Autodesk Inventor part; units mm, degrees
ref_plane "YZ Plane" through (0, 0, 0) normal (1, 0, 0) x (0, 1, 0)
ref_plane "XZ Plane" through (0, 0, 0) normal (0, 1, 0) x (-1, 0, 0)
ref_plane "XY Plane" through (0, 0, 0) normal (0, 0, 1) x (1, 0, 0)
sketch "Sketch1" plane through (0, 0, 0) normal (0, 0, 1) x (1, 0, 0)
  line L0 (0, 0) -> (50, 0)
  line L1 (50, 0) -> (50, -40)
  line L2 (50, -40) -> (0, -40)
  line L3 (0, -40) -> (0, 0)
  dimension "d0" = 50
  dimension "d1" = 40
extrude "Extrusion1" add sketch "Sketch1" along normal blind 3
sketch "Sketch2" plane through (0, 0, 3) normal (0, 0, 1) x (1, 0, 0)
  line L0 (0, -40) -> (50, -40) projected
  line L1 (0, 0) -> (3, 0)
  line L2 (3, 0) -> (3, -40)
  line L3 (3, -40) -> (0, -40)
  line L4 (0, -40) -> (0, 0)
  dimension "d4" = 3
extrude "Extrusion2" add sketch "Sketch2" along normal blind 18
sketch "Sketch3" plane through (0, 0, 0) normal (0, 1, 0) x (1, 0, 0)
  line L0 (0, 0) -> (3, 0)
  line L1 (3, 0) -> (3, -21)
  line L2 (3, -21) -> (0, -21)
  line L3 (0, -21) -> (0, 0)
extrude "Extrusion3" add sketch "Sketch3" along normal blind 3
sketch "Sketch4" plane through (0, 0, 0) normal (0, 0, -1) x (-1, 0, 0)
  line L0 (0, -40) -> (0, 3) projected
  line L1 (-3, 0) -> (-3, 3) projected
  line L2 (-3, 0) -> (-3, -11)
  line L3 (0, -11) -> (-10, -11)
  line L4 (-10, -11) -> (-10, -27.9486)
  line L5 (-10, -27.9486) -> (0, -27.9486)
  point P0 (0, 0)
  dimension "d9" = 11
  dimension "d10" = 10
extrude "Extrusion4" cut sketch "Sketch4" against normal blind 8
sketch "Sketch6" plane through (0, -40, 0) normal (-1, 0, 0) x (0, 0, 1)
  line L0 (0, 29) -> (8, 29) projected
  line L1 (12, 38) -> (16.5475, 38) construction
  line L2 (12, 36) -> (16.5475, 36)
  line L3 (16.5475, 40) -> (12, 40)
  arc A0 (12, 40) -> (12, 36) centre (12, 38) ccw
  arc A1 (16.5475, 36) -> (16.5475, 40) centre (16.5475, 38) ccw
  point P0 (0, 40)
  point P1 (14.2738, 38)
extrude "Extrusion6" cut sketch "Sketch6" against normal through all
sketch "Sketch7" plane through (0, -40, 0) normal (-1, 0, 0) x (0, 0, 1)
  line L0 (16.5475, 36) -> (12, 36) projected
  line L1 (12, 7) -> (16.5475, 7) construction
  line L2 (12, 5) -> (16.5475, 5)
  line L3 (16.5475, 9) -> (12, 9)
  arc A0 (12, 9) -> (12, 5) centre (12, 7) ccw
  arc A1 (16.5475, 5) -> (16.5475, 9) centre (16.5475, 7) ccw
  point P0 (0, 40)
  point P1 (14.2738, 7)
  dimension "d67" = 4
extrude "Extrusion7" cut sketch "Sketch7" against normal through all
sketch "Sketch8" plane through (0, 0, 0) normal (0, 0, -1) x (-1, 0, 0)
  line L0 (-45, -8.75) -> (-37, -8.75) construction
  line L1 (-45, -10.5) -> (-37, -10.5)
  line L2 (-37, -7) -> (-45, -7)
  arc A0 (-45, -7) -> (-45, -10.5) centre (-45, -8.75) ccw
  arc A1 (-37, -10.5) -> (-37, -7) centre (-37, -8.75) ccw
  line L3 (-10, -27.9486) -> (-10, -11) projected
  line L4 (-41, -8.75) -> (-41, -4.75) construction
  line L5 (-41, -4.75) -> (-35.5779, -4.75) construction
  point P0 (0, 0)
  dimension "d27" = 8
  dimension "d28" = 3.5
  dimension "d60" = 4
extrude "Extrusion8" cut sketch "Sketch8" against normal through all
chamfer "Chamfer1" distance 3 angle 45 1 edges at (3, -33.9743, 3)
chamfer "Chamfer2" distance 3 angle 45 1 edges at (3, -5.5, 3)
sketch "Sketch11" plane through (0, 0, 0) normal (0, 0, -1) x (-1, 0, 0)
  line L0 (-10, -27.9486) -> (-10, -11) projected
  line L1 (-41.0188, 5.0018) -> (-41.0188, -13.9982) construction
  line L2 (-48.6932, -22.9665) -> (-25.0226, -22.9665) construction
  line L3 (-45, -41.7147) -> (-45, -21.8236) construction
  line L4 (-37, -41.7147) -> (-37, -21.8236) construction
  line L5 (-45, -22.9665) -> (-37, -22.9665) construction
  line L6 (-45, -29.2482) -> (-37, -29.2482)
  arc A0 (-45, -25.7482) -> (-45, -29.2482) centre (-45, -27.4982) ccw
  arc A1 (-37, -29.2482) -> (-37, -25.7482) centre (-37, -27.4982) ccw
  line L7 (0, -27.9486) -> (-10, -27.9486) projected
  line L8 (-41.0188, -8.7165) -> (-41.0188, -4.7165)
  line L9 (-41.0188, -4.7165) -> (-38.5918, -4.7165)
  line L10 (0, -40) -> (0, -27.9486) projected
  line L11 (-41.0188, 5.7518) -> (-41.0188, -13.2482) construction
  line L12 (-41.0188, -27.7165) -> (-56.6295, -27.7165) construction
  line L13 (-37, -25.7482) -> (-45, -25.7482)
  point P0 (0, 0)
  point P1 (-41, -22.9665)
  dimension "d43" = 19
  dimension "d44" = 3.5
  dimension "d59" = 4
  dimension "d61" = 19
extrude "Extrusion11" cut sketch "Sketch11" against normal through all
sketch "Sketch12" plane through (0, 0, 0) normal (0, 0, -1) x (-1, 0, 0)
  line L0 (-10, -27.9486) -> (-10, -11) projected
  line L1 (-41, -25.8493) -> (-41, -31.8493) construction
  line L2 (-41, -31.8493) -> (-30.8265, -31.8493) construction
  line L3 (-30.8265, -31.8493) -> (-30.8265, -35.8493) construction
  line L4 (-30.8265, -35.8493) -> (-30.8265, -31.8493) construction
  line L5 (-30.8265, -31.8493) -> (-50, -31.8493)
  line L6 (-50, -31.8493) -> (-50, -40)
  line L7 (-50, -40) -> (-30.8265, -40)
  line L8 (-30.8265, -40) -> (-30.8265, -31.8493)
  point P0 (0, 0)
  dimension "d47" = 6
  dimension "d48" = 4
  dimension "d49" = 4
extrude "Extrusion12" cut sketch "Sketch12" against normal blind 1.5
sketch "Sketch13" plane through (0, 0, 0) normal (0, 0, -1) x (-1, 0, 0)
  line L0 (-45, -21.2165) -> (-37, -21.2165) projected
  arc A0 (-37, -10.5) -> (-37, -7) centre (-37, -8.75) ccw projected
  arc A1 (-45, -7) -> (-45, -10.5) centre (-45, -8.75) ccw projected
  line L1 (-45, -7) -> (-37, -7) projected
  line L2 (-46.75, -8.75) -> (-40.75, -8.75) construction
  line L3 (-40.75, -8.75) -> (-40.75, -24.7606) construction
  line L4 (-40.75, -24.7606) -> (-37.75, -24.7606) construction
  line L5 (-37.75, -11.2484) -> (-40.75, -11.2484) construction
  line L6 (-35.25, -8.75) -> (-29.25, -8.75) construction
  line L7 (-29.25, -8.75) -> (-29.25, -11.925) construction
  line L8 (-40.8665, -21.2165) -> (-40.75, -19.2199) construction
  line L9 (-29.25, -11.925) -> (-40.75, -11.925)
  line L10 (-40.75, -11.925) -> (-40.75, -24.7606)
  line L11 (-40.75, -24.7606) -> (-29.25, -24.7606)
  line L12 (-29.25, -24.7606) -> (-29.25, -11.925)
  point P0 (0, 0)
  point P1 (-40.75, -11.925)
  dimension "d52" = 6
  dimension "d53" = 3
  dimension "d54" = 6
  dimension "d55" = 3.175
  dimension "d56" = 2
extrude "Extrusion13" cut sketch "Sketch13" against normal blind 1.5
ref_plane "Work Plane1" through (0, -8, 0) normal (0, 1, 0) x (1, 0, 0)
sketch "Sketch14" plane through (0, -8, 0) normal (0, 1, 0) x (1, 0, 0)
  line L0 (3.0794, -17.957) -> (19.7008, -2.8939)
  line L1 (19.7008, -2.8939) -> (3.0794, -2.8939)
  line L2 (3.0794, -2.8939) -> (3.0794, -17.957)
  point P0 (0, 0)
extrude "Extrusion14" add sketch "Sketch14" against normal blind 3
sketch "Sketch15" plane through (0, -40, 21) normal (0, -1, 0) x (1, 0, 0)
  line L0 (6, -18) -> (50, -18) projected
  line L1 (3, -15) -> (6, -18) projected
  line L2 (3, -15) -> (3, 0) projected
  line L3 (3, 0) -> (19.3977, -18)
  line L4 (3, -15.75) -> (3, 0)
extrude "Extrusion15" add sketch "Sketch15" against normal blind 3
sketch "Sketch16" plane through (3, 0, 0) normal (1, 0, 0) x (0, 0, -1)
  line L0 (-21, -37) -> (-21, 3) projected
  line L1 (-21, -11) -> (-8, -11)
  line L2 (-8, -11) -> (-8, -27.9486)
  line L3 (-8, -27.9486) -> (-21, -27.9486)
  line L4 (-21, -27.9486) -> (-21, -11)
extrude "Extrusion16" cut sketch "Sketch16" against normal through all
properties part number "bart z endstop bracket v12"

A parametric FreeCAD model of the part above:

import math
import FreeCAD as App
import Part
import Sketcher
from FreeCAD import Vector
Q = App.Units.Quantity


def edges_at(feature, points):
    """Names of the edges that pass closest to the given points."""
    edges = feature.Shape.Edges
    near = lambda p: min(range(len(edges)), key=lambda i: edges[i].distToShape(Part.Vertex(*p))[0])
    return sorted({f"Edge{near(p) + 1}" for p in points})

doc = App.newDocument("Part")
body = doc.addObject("PartDesign::Body", "Body")

# Sketch on XY plane
sketch1 = body.newObject("Sketcher::SketchObject", "Sketch")
sketch1.AttachmentSupport = (doc.getObject("XY_Plane"), [""])
sketch1.MapMode = "FlatFace"
sketch1.addGeometry([
    Part.LineSegment(Vector(50, 0, 0), Vector(0, 0, 0)),
    Part.LineSegment(Vector(0, 0, 0), Vector(0, -40, 0)),
    Part.LineSegment(Vector(0, -40, 0), Vector(50, -40, 0)),
    Part.LineSegment(Vector(50, -40, 0), Vector(50, 0, 0)),
], False)
sketch1.addConstraint([
    Sketcher.Constraint("Coincident", 0, 2, 1, 1),
    Sketcher.Constraint("Coincident", 1, 2, 2, 1),
    Sketcher.Constraint("Coincident", 2, 2, 3, 1),
    Sketcher.Constraint("Coincident", 3, 2, 0, 1),
    Sketcher.Constraint("Horizontal", 0),
    Sketcher.Constraint("Vertical", 1),
    Sketcher.Constraint("Horizontal", 2),
    Sketcher.Constraint("Vertical", 3),
    Sketcher.Constraint("Coincident", 0, 2, -1, 1),
    Sketcher.Constraint("DistanceX", 0, 2, 0, 1, 50.0),
    Sketcher.Constraint("DistanceY", 1, 2, 1, 1, 40.0),
])
pad1 = body.newObject("PartDesign::Pad", "Pad")
pad1.Profile = sketch1
pad1.Length = 3

# Sketch on XY plane
sketch2 = body.newObject("Sketcher::SketchObject", "Sketch001")
sketch2.AttachmentSupport = (doc.getObject("XY_Plane"), [""])
sketch2.MapMode = "FlatFace"
sketch2.AttachmentOffset = App.Placement(Vector(0, 0, 3), App.Rotation())
sketch2.addGeometry([
    Part.LineSegment(Vector(0, 0, 0), Vector(0, -40, 0)),
    Part.LineSegment(Vector(0, -40, 0), Vector(3, -40, 0)),
    Part.LineSegment(Vector(3, -40, 0), Vector(3, 0, 0)),
    Part.LineSegment(Vector(3, 0, 0), Vector(0, 0, 0)),
], False)
sketch2.addConstraint([
    Sketcher.Constraint("Coincident", 0, 2, 1, 1),
    Sketcher.Constraint("Coincident", 1, 2, 2, 1),
    Sketcher.Constraint("Coincident", 2, 2, 3, 1),
    Sketcher.Constraint("Coincident", 3, 2, 0, 1),
    Sketcher.Constraint("Vertical", 0),
    Sketcher.Constraint("Horizontal", 1),
    Sketcher.Constraint("Vertical", 2),
    Sketcher.Constraint("Horizontal", 3),
    Sketcher.Constraint("Coincident", 3, 2, -1, 1),
    Sketcher.Constraint("DistanceX", 1, 1, 1, 2, 3.0),
    Sketcher.Constraint("DistanceY", 0, 2, 0, 1, 40.0),
])
pad2 = body.newObject("PartDesign::Pad", "Pad001")
pad2.Profile = sketch2
pad2.Length = 18

# Sketch on XZ plane
sketch3 = body.newObject("Sketcher::SketchObject", "Sketch002")
sketch3.AttachmentSupport = (doc.getObject("XZ_Plane"), [""])
sketch3.MapMode = "FlatFace"
sketch3.addGeometry([
    Part.LineSegment(Vector(3, 0, 0), Vector(0, 0, 0)),
    Part.LineSegment(Vector(0, 0, 0), Vector(0, 21, 0)),
    Part.LineSegment(Vector(0, 21, 0), Vector(3, 21, 0)),
    Part.LineSegment(Vector(3, 21, 0), Vector(3, 0, 0)),
], False)
sketch3.addConstraint([
    Sketcher.Constraint("Coincident", 0, 2, 1, 1),
    Sketcher.Constraint("Coincident", 1, 2, 2, 1),
    Sketcher.Constraint("Coincident", 2, 2, 3, 1),
    Sketcher.Constraint("Coincident", 3, 2, 0, 1),
    Sketcher.Constraint("Horizontal", 0),
    Sketcher.Constraint("Vertical", 1),
    Sketcher.Constraint("Horizontal", 2),
    Sketcher.Constraint("Vertical", 3),
    Sketcher.Constraint("Coincident", 0, 2, -1, 1),
    Sketcher.Constraint("DistanceX", 0, 2, 0, 1, 3.0),
    Sketcher.Constraint("DistanceY", 1, 1, 1, 2, 21.0),
])
pad3 = body.newObject("PartDesign::Pad", "Pad002")
pad3.Profile = sketch3
pad3.Length = 3
pad3.Reversed = True

# Sketch on XY plane
sketch4 = body.newObject("Sketcher::SketchObject", "Sketch003")
sketch4.AttachmentSupport = (doc.getObject("XY_Plane"), [""])
sketch4.MapMode = "FlatFace"
sketch4.addGeometry([
    Part.LineSegment(Vector(10, -28, 0), Vector(0, -28, 0)),
    Part.LineSegment(Vector(0, -28, 0), Vector(0, -11, 0)),
    Part.LineSegment(Vector(0, -11, 0), Vector(10, -11, 0)),
    Part.LineSegment(Vector(10, -11, 0), Vector(10, -28, 0)),
], False)
sketch4.addConstraint([
    Sketcher.Constraint("Coincident", 0, 2, 1, 1),
    Sketcher.Constraint("Coincident", 1, 2, 2, 1),
    Sketcher.Constraint("Coincident", 2, 2, 3, 1),
    Sketcher.Constraint("Coincident", 3, 2, 0, 1),
    Sketcher.Constraint("Horizontal", 0),
    Sketcher.Constraint("Vertical", 1),
    Sketcher.Constraint("Horizontal", 2),
    Sketcher.Constraint("Vertical", 3),
    Sketcher.Constraint("PointOnObject", 0, 2, -2),
    Sketcher.Constraint("DistanceX", 0, 2, 0, 1, 10.0),
    Sketcher.Constraint("DistanceY", 1, 2, -1, 1, 11.0),
    Sketcher.Constraint("DistanceY", 1, 1, 1, 2, 16.9486),
])
pocket1 = body.newObject("PartDesign::Pocket", "Pocket")
pocket1.Profile = sketch4
pocket1.Length = 8
pocket1.Reversed = True

# Sketch on YZ plane
sketch5 = body.newObject("Sketcher::SketchObject", "Sketch004")
sketch5.AttachmentSupport = (doc.getObject("YZ_Plane"), [""])
sketch5.MapMode = "FlatFace"
sketch5.addGeometry([
    Part.ArcOfCircle(Part.Circle(Vector(-2, 12, 0), Vector(0, 0, 1), 2), math.radians(180), math.radians(360)),
    Part.LineSegment(Vector(-4, 12, 0), Vector(-4, 16.5, 0)),
    Part.ArcOfCircle(Part.Circle(Vector(-2, 16.5, 0), Vector(0, 0, 1), 2), math.radians(0), math.radians(180)),
    Part.LineSegment(Vector(0, 16.5, 0), Vector(0, 12, 0)),
], False)
sketch5.addConstraint([
    Sketcher.Constraint("Tangent", 0, 1, 1, 1),
    Sketcher.Constraint("Tangent", 1, 2, 2, 2),
    Sketcher.Constraint("Tangent", 2, 1, 3, 1),
    Sketcher.Constraint("Tangent", 3, 2, 0, 2),
    Sketcher.Constraint("Vertical", 1),
    Sketcher.Constraint("Vertical", 3),
    Sketcher.Constraint("PointOnObject", 2, 1, -2),
    Sketcher.Constraint("Radius", 0, 2.0),
    Sketcher.Constraint("DistanceY", -1, 1, 0, 3, 12.0),
    Sketcher.Constraint("DistanceY", 1, 1, 1, 2, 4.5475),
])
pocket2 = body.newObject("PartDesign::Pocket", "Pocket001")
pocket2.Profile = sketch5
pocket2.Type = "ThroughAll"
pocket2.Reversed = True

# Sketch on YZ plane
sketch6 = body.newObject("Sketcher::SketchObject", "Sketch005")
sketch6.AttachmentSupport = (doc.getObject("YZ_Plane"), [""])
sketch6.MapMode = "FlatFace"
sketch6.addGeometry([
    Part.ArcOfCircle(Part.Circle(Vector(-33, 12, 0), Vector(0, 0, 1), 2), math.radians(180), math.radians(360)),
    Part.LineSegment(Vector(-35, 12, 0), Vector(-35, 16.5, 0)),
    Part.ArcOfCircle(Part.Circle(Vector(-33, 16.5, 0), Vector(0, 0, 1), 2), math.radians(0), math.radians(180)),
    Part.LineSegment(Vector(-31, 16.5, 0), Vector(-31, 12, 0)),
], False)
sketch6.addConstraint([
    Sketcher.Constraint("Tangent", 0, 1, 1, 1),
    Sketcher.Constraint("Tangent", 1, 2, 2, 2),
    Sketcher.Constraint("Tangent", 2, 1, 3, 1),
    Sketcher.Constraint("Tangent", 3, 2, 0, 2),
    Sketcher.Constraint("Vertical", 1),
    Sketcher.Constraint("Vertical", 3),
    Sketcher.Constraint("Radius", 0, 2.0),
    Sketcher.Constraint("DistanceX", 0, 3, -1, 1, 33.0),
    Sketcher.Constraint("DistanceY", -1, 1, 0, 3, 12.0),
    Sketcher.Constraint("DistanceY", 1, 1, 1, 2, 4.5475),
])
pocket3 = body.newObject("PartDesign::Pocket", "Pocket002")
pocket3.Profile = sketch6
pocket3.Type = "ThroughAll"
pocket3.Reversed = True

# Sketch on XY plane
sketch7 = body.newObject("Sketcher::SketchObject", "Sketch006")
sketch7.AttachmentSupport = (doc.getObject("XY_Plane"), [""])
sketch7.MapMode = "FlatFace"
sketch7.addGeometry([
    Part.ArcOfCircle(Part.Circle(Vector(45, -8.8, 0), Vector(0, 0, 1), 1.8), math.radians(-90), math.radians(90)),
    Part.LineSegment(Vector(45, -10.5, 0), Vector(37, -10.5, 0)),
    Part.ArcOfCircle(Part.Circle(Vector(37, -8.8, 0), Vector(0, 0, 1), 1.8), math.radians(90), math.radians(270)),
    Part.LineSegment(Vector(37, -7, 0), Vector(45, -7, 0)),
], False)
sketch7.addConstraint([
    Sketcher.Constraint("Tangent", 0, 1, 1, 1),
    Sketcher.Constraint("Tangent", 1, 2, 2, 2),
    Sketcher.Constraint("Tangent", 2, 1, 3, 1),
    Sketcher.Constraint("Tangent", 3, 2, 0, 2),
    Sketcher.Constraint("Horizontal", 1),
    Sketcher.Constraint("Horizontal", 3),
    Sketcher.Constraint("DistanceX", 1, 2, 1, 1, 8.0),
    Sketcher.Constraint("Radius", 0, 1.75),
    Sketcher.Constraint("DistanceX", -1, 1, 0, 3, 45.0),
    Sketcher.Constraint("DistanceY", 2, 1, -1, 1, 7.0),
])
pocket4 = body.newObject("PartDesign::Pocket", "Pocket003")
pocket4.Profile = sketch7
pocket4.Type = "ThroughAll"
pocket4.Reversed = True
doc.recompute()

chamfer = body.newObject("PartDesign::Chamfer", "Chamfer")
chamfer.Base = (pocket4, edges_at(pocket4, [(3, -33.974, 3)]))
chamfer.Size = 3
doc.recompute()

chamfer2 = body.newObject("PartDesign::Chamfer", "Chamfer001")
chamfer2.Base = (chamfer, edges_at(chamfer, [(3, -5.5, 3)]))
chamfer2.Size = 3

# Sketch on XY plane
sketch8 = body.newObject("Sketcher::SketchObject", "Sketch007")
sketch8.AttachmentSupport = (doc.getObject("XY_Plane"), [""])
sketch8.MapMode = "FlatFace"
sketch8.addGeometry([
    Part.ArcOfCircle(Part.Circle(Vector(45, -27.5, 0), Vector(0, 0, 1), 1.8), math.radians(-90), math.radians(90)),
    Part.LineSegment(Vector(45, -29.2, 0), Vector(37, -29.2, 0)),
    Part.ArcOfCircle(Part.Circle(Vector(37, -27.5, 0), Vector(0, 0, 1), 1.8), math.radians(90), math.radians(270)),
    Part.LineSegment(Vector(37, -25.7, 0), Vector(45, -25.7, 0)),
], False)
sketch8.addConstraint([
    Sketcher.Constraint("Tangent", 0, 1, 1, 1),
    Sketcher.Constraint("Tangent", 1, 2, 2, 2),
    Sketcher.Constraint("Tangent", 2, 1, 3, 1),
    Sketcher.Constraint("Tangent", 3, 2, 0, 2),
    Sketcher.Constraint("Horizontal", 1),
    Sketcher.Constraint("Horizontal", 3),
    Sketcher.Constraint("Radius", 0, 1.75),
    Sketcher.Constraint("DistanceX", 1, 2, 1, 1, 8.0),
    Sketcher.Constraint("DistanceX", -1, 1, 0, 3, 45.0),
    Sketcher.Constraint("DistanceY", 0, 3, -1, 1, 27.4982),
])
pocket5 = body.newObject("PartDesign::Pocket", "Pocket004")
pocket5.Profile = sketch8
pocket5.Type = "ThroughAll"
pocket5.Reversed = True

# Sketch on XY plane
sketch9 = body.newObject("Sketcher::SketchObject", "Sketch008")
sketch9.AttachmentSupport = (doc.getObject("XY_Plane"), [""])
sketch9.MapMode = "FlatFace"
sketch9.addGeometry([
    Part.LineSegment(Vector(31, -40, 0), Vector(31, -32, 0)),
    Part.LineSegment(Vector(31, -32, 0), Vector(50, -32, 0)),
    Part.LineSegment(Vector(50, -32, 0), Vector(50, -40, 0)),
    Part.LineSegment(Vector(50, -40, 0), Vector(31, -40, 0)),
], False)
sketch9.addConstraint([
    Sketcher.Constraint("Coincident", 0, 2, 1, 1),
    Sketcher.Constraint("Coincident", 1, 2, 2, 1),
    Sketcher.Constraint("Coincident", 2, 2, 3, 1),
    Sketcher.Constraint("Coincident", 3, 2, 0, 1),
    Sketcher.Constraint("Vertical", 0),
    Sketcher.Constraint("Horizontal", 1),
    Sketcher.Constraint("Vertical", 2),
    Sketcher.Constraint("Horizontal", 3),
    Sketcher.Constraint("DistanceX", -1, 1, 1, 2, 50.0),
    Sketcher.Constraint("DistanceY", 2, 2, -1, 1, 40.0),
    Sketcher.Constraint("DistanceX", 1, 1, 1, 2, 19.1735),
    Sketcher.Constraint("DistanceY", 0, 1, 0, 2, 8.1507),
])
pocket6 = body.newObject("PartDesign::Pocket", "Pocket005")
pocket6.Profile = sketch9
pocket6.Length = 1.5
pocket6.Reversed = True

# Sketch on XY plane
sketch10 = body.newObject("Sketcher::SketchObject", "Sketch009")
sketch10.AttachmentSupport = (doc.getObject("XY_Plane"), [""])
sketch10.MapMode = "FlatFace"
sketch10.addGeometry([
    Part.LineSegment(Vector(29, -25, 0), Vector(29, -12, 0)),
    Part.LineSegment(Vector(29, -12, 0), Vector(41, -12, 0)),
    Part.LineSegment(Vector(41, -12, 0), Vector(41, -25, 0)),
    Part.LineSegment(Vector(41, -25, 0), Vector(29, -25, 0)),
], False)
sketch10.addConstraint([
    Sketcher.Constraint("Coincident", 0, 2, 1, 1),
    Sketcher.Constraint("Coincident", 1, 2, 2, 1),
    Sketcher.Constraint("Coincident", 2, 2, 3, 1),
    Sketcher.Constraint("Coincident", 3, 2, 0, 1),
    Sketcher.Constraint("Vertical", 0),
    Sketcher.Constraint("Horizontal", 1),
    Sketcher.Constraint("Vertical", 2),
    Sketcher.Constraint("Horizontal", 3),
    Sketcher.Constraint("DistanceX", 1, 1, 1, 2, 11.5),
    Sketcher.Constraint("DistanceX", -1, 1, 0, 2, 29.25),
    Sketcher.Constraint("DistanceY", 0, 1, 0, 2, 12.8356),
    Sketcher.Constraint("DistanceY", 0, 2, -1, 1, 11.925),
])
pocket7 = body.newObject("PartDesign::Pocket", "Pocket006")
pocket7.Profile = sketch10
pocket7.Length = 1.5
pocket7.Reversed = True

# Sketch on XZ plane
sketch11 = body.newObject("Sketcher::SketchObject", "Sketch010")
sketch11.AttachmentSupport = (doc.getObject("XZ_Plane"), [""])
sketch11.MapMode = "FlatFace"
sketch11.AttachmentOffset = App.Placement(Vector(0, 0, 8), App.Rotation())
sketch11.addGeometry([
    Part.LineSegment(Vector(3, 3, 0), Vector(3, 18, 0)),
    Part.LineSegment(Vector(3, 18, 0), Vector(20, 3, 0)),
    Part.LineSegment(Vector(20, 3, 0), Vector(3, 3, 0)),
], False)
sketch11.addConstraint([
    Sketcher.Constraint("Coincident", 0, 2, 1, 1),
    Sketcher.Constraint("Coincident", 1, 2, 2, 1),
    Sketcher.Constraint("Coincident", 2, 2, 0, 1),
    Sketcher.Constraint("Vertical", 0),
    Sketcher.Constraint("Horizontal", 2),
    Sketcher.Constraint("DistanceY", 0, 1, 0, 2, 15.063),
    Sketcher.Constraint("DistanceX", 2, 2, 2, 1, 16.6214),
    Sketcher.Constraint("DistanceY", -1, 1, 0, 2, 17.957),
    Sketcher.Constraint("DistanceX", -1, 1, 0, 2, 3.0794),
])
pad4 = body.newObject("PartDesign::Pad", "Pad003")
pad4.Profile = sketch11
pad4.Length = 3

# Sketch on XZ plane
sketch12 = body.newObject("Sketcher::SketchObject", "Sketch011")
sketch12.AttachmentSupport = (doc.getObject("XZ_Plane"), [""])
sketch12.MapMode = "FlatFace"
sketch12.AttachmentOffset = App.Placement(Vector(0, 0, 40), App.Rotation())
sketch12.addGeometry([
    Part.LineSegment(Vector(3, 6, 0), Vector(6, 3, 0)),
    Part.LineSegment(Vector(6, 3, 0), Vector(19.4, 3, 0)),
    Part.LineSegment(Vector(19.4, 3, 0), Vector(3, 21, 0)),
    Part.LineSegment(Vector(3, 21, 0), Vector(3, 6, 0)),
], False)
sketch12.addConstraint([
    Sketcher.Constraint("Coincident", 0, 2, 1, 1),
    Sketcher.Constraint("Coincident", 1, 2, 2, 1),
    Sketcher.Constraint("Coincident", 2, 2, 3, 1),
    Sketcher.Constraint("Coincident", 3, 2, 0, 1),
    Sketcher.Constraint("Horizontal", 1),
    Sketcher.Constraint("Vertical", 3),
    Sketcher.Constraint("DistanceY", 3, 2, 3, 1, 15.0),
    Sketcher.Constraint("Angle", 0, Q("-45 deg")),
    Sketcher.Constraint("DistanceX", -1, 1, 0, 2, 6.0),
    Sketcher.Constraint("DistanceY", -1, 1, 0, 2, 3.0),
    Sketcher.Constraint("DistanceX", -1, 1, 2, 2, 3.0),
    Sketcher.Constraint("DistanceX", 1, 1, 1, 2, 13.3977),
])
pad5 = body.newObject("PartDesign::Pad", "Pad004")
pad5.Profile = sketch12
pad5.Length = 3
pad5.Reversed = True

# Sketch on YZ plane
sketch13 = body.newObject("Sketcher::SketchObject", "Sketch012")
sketch13.AttachmentSupport = (doc.getObject("YZ_Plane"), [""])
sketch13.MapMode = "FlatFace"
sketch13.AttachmentOffset = App.Placement(Vector(0, 0, 3), App.Rotation())
sketch13.addGeometry([
    Part.LineSegment(Vector(-11, 21, 0), Vector(-28, 21, 0)),
    Part.LineSegment(Vector(-28, 21, 0), Vector(-28, 8, 0)),
    Part.LineSegment(Vector(-28, 8, 0), Vector(-11, 8, 0)),
    Part.LineSegment(Vector(-11, 8, 0), Vector(-11, 21, 0)),
], False)
sketch13.addConstraint([
    Sketcher.Constraint("Coincident", 0, 2, 1, 1),
    Sketcher.Constraint("Coincident", 1, 2, 2, 1),
    Sketcher.Constraint("Coincident", 2, 2, 3, 1),
    Sketcher.Constraint("Coincident", 3, 2, 0, 1),
    Sketcher.Constraint("Horizontal", 0),
    Sketcher.Constraint("Vertical", 1),
    Sketcher.Constraint("Horizontal", 2),
    Sketcher.Constraint("Vertical", 3),
    Sketcher.Constraint("DistanceY", 1, 2, 1, 1, 13.0),
    Sketcher.Constraint("DistanceY", -1, 1, 0, 2, 21.0),
    Sketcher.Constraint("DistanceX", 2, 2, -1, 1, 11.0),
    Sketcher.Constraint("DistanceX", 0, 2, 0, 1, 16.9486),
])
pocket8 = body.newObject("PartDesign::Pocket", "Pocket007")
pocket8.Profile = sketch13
pocket8.Type = "ThroughAll"

doc.recompute()
